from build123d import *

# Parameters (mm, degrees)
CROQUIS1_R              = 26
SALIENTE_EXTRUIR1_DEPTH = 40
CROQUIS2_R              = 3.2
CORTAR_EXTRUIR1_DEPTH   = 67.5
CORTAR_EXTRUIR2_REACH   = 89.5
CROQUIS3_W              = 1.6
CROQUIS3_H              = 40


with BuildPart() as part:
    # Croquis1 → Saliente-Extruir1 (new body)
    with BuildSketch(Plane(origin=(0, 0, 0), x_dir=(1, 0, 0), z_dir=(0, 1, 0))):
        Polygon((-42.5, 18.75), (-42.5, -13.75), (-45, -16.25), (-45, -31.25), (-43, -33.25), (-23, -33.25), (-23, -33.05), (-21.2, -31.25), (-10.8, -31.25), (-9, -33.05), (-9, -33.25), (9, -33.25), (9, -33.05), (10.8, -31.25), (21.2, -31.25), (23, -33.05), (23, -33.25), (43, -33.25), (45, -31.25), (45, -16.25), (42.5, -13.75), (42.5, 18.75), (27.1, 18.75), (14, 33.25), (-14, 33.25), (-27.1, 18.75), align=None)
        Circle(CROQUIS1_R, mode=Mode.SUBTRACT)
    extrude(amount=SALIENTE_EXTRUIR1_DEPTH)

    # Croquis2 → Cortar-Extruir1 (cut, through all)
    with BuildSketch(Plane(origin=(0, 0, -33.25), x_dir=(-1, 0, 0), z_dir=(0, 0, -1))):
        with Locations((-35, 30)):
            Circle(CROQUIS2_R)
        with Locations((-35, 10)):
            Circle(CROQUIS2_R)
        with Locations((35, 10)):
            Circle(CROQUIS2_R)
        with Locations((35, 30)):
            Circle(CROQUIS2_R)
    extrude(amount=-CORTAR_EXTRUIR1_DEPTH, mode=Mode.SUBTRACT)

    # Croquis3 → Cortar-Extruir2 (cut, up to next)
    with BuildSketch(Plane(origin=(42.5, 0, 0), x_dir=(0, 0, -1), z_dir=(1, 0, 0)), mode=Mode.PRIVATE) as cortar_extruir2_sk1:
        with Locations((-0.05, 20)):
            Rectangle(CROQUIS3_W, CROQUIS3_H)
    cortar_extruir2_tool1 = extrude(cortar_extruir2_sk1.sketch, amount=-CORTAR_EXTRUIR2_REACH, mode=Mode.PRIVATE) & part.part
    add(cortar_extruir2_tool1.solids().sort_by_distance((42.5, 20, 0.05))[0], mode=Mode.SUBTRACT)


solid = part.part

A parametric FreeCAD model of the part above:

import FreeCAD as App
import Part
import Sketcher
Q = App.Units.Quantity


def add_polygon(sketch, points):
    """Adds a closed chain of lines whose ends are joined by coincident constraints."""
    first, n = sketch.GeometryCount, len(points)
    for a, b in zip(points, points[1:] + points[:1]):
        sketch.addGeometry(Part.LineSegment(App.Vector(*a, 0), App.Vector(*b, 0)), False)
    for i in range(n):
        sketch.addConstraint(Sketcher.Constraint("Coincident", first + i, 2, first + (i + 1) % n, 1))

doc = App.newDocument("Part")
body = doc.addObject("PartDesign::Body", "Body")

# Sketch on XZ plane
sketch1 = body.newObject("Sketcher::SketchObject", "Sketch")
sketch1.AttachmentSupport = (doc.getObject("XZ_Plane"), [""])
sketch1.MapMode = "FlatFace"
add_polygon(sketch1, [(-42.5, -18.75), (-42.5, 13.75), (-45, 16.25), (-45, 31.25), (-43, 33.25), (-23, 33.25), (-23, 33.05), (-21.2, 31.25), (-10.8, 31.25), (-9, 33.05), (-9, 33.25), (9, 33.25), (9, 33.05), (10.8, 31.25), (21.2, 31.25), (23, 33.05), (23, 33.25), (43, 33.25), (45, 31.25), (45, 16.25), (42.5, 13.75), (42.5, -18.75), (27.1, -18.75), (14, -33.25), (-14, -33.25), (-27.1, -18.75)])  # lines 0-25
sketch1.addGeometry(Part.Circle(App.Vector(0, 0, 0), App.Vector(0, 0, 1), 26), False)  # 26
sketch1.addConstraint(Sketcher.Constraint("Vertical", 0))
sketch1.addConstraint(Sketcher.Constraint("Vertical", 2))
sketch1.addConstraint(Sketcher.Constraint("Horizontal", 4))
sketch1.addConstraint(Sketcher.Constraint("Vertical", 5))
sketch1.addConstraint(Sketcher.Constraint("Horizontal", 7))
sketch1.addConstraint(Sketcher.Constraint("Vertical", 9))
sketch1.addConstraint(Sketcher.Constraint("Horizontal", 10))
sketch1.addConstraint(Sketcher.Constraint("Vertical", 11))
sketch1.addConstraint(Sketcher.Constraint("Horizontal", 13))
sketch1.addConstraint(Sketcher.Constraint("Vertical", 15))
sketch1.addConstraint(Sketcher.Constraint("Horizontal", 16))
sketch1.addConstraint(Sketcher.Constraint("Vertical", 18))
sketch1.addConstraint(Sketcher.Constraint("Vertical", 20))
sketch1.addConstraint(Sketcher.Constraint("Horizontal", 21))
sketch1.addConstraint(Sketcher.Constraint("Horizontal", 23))
sketch1.addConstraint(Sketcher.Constraint("Horizontal", 25))
sketch1.addConstraint(Sketcher.Constraint("Coincident", 26, 3, -1, 1))
sketch1.addConstraint(Sketcher.Constraint("Symmetric", 8, 2, 11, 2, -2))
sketch1.addConstraint(Sketcher.Constraint("Symmetric", 7, 2, 12, 2, -2))
sketch1.addConstraint(Sketcher.Constraint("Symmetric", 5, 2, 14, 2, -2))
sketch1.addConstraint(Sketcher.Constraint("Symmetric", 3, 2, 16, 2, -2))
sketch1.addConstraint(Sketcher.Constraint("Symmetric", 2, 2, 17, 2, -2))
sketch1.addConstraint(Sketcher.Constraint("Symmetric", 0, 2, 19, 2, -2))
sketch1.addConstraint(Sketcher.Constraint("Symmetric", 21, 2, 24, 2, -2))
sketch1.addConstraint(Sketcher.Constraint("Perpendicular", 1, 3))
sketch1.addConstraint(Sketcher.Constraint("Perpendicular", 3, 6))
sketch1.addConstraint(Sketcher.Constraint("Perpendicular", 6, 8))
sketch1.addConstraint(Sketcher.Constraint("Perpendicular", 8, 12))
sketch1.addConstraint(Sketcher.Constraint("Perpendicular", 12, 14))
sketch1.addConstraint(Sketcher.Constraint("Perpendicular", 17, 19))
sketch1.addConstraint(Sketcher.Constraint("Horizontal", 2, 2, 6, 2))
sketch1.addConstraint(Sketcher.Constraint("Horizontal", 5, 2, 8, 2))
sketch1.addConstraint(Sketcher.Constraint("Horizontal", 4, 2, 9, 2))
sketch1.addConstraint(Sketcher.Constraint("Equal", 22, 24))
sketch1.addConstraint(Sketcher.Constraint("Diameter", 26, Q("52 mm")))
sketch1.addConstraint(Sketcher.Constraint("DistanceX", 4, 1, 4, 2, Q("20 mm")))
sketch1.addConstraint(Sketcher.Constraint("DistanceX", 10, 1, 10, 2, Q("18 mm")))
sketch1.addConstraint(Sketcher.Constraint("DistanceX", 23, 2, 23, 1, Q("28 mm")))
sketch1.addConstraint(Sketcher.Constraint("DistanceY", 2, 1, 2, 2, Q("15 mm")))
sketch1.addConstraint(Sketcher.Constraint("DistanceX", 7, 1, 7, 2, Q("10.4 mm")))
sketch1.addConstraint(Sketcher.Constraint("DistanceX", 21, 2, 21, 1, Q("15.4 mm")))
sketch1.addConstraint(Sketcher.Constraint("DistanceY", 0, 1, 0, 2, Q("32.5 mm")))
sketch1.addConstraint(Sketcher.Constraint("DistanceY", 5, 2, 5, 1, Q("0.2 mm")))
sketch1.addConstraint(Sketcher.Constraint("DistanceX", 1, 2, -1, 1, Q("45 mm")))
sketch1.addConstraint(Sketcher.Constraint("DistanceY", 20, 2, 18, 2, Q("35 mm")))
sketch1.addConstraint(Sketcher.Constraint("DistanceY", 22, 2, 19, 2, Q("47 mm")))
sketch1.addConstraint(Sketcher.Constraint("DistanceY", -1, 1, 0, 2, Q("13.75 mm")))
pad1 = body.newObject("PartDesign::Pad", "Pad")
pad1.Profile = sketch1
pad1.Length = 40
pad1.Reversed = True

# Sketch on XY plane
sketch2 = body.newObject("Sketcher::SketchObject", "Sketch001")
sketch2.AttachmentSupport = (doc.getObject("XY_Plane"), [""])
sketch2.MapMode = "FlatFace"
sketch2.AttachmentOffset = App.Placement(App.Vector(0, 0, -33.25), App.Rotation())
sketch2.addGeometry(Part.Circle(App.Vector(35, 30, 0), App.Vector(0, 0, 1), 3.2), False)
sketch2.addGeometry(Part.Circle(App.Vector(35, 10, 0), App.Vector(0, 0, 1), 3.2), False)
sketch2.addGeometry(Part.Circle(App.Vector(-35, 10, 0), App.Vector(0, 0, 1), 3.2), False)
sketch2.addGeometry(Part.Circle(App.Vector(-35, 30, 0), App.Vector(0, 0, 1), 3.2), False)
sketch2.addConstraint(Sketcher.Constraint("Equal", 0, 1))
sketch2.addConstraint(Sketcher.Constraint("Equal", 1, 2))
sketch2.addConstraint(Sketcher.Constraint("Equal", 2, 3))
sketch2.addConstraint(Sketcher.Constraint("Symmetric", 1, 3, 2, 3, -2))
sketch2.addConstraint(Sketcher.Constraint("Symmetric", 0, 3, 3, 3, -2))
sketch2.addConstraint(Sketcher.Constraint("Vertical", 0, 3, 1, 3))
sketch2.addConstraint(Sketcher.Constraint("Diameter", 0, Q("6.4 mm")))
sketch2.addConstraint(Sketcher.Constraint("DistanceX", -1, 1, 0, 3, Q("35 mm")))
sketch2.addConstraint(Sketcher.Constraint("DistanceY", -1, 1, 0, 3, Q("30 mm")))
sketch2.addConstraint(Sketcher.Constraint("DistanceY", -1, 1, 1, 3, Q("10 mm")))
pocket1 = body.newObject("PartDesign::Pocket", "Pocket")
pocket1.Profile = sketch2
pocket1.Type = "ThroughAll"
pocket1.Reversed = True

# Sketch on YZ plane
sketch3 = body.newObject("Sketcher::SketchObject", "Sketch002")
sketch3.AttachmentSupport = (doc.getObject("YZ_Plane"), [""])
sketch3.MapMode = "FlatFace"
sketch3.AttachmentOffset = App.Placement(App.Vector(0, 0, 42.5), App.Rotation())
add_polygon(sketch3, [(40, 0.8), (0, 0.8), (0, -0.8), (40, -0.8)])  # lines 0-3
sketch3.addConstraint(Sketcher.Constraint("Horizontal", 0))
sketch3.addConstraint(Sketcher.Constraint("Vertical", 1))
sketch3.addConstraint(Sketcher.Constraint("Horizontal", 2))
sketch3.addConstraint(Sketcher.Constraint("Vertical", 3))
sketch3.addConstraint(Sketcher.Constraint("PointOnObject", 0, 2, -2))
sketch3.addConstraint(Sketcher.Constraint("DistanceX", 0, 2, 0, 1, Q("40 mm")))
sketch3.addConstraint(Sketcher.Constraint("DistanceY", 1, 2, 1, 1, Q("1.6 mm")))
sketch3.addConstraint(Sketcher.Constraint("DistanceY", -1, 1, 0, 2, Q("0.85 mm")))
pocket2 = body.newObject("PartDesign::Pocket", "Pocket001")
pocket2.Profile = sketch3
pocket2.Length = 16.513898

doc.recompute()
